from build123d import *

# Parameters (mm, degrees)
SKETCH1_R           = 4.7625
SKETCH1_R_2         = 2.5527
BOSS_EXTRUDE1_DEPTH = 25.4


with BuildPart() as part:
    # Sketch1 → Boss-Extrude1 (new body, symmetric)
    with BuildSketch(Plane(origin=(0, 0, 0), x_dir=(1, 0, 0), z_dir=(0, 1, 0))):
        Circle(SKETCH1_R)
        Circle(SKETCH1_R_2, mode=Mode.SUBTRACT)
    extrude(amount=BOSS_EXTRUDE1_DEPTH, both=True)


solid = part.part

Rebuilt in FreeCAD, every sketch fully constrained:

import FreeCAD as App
import Part
import Sketcher

V = App.Vector
Q = App.Units.Quantity

doc = App.newDocument("Part")
body = doc.addObject("PartDesign::Body", "Body")

# Sketch on XZ plane
sketch1 = body.newObject("Sketcher::SketchObject", "Sketch")
sketch1.AttachmentSupport = (doc.getObject("XZ_Plane"), [""])
sketch1.MapMode = "FlatFace"
sketch1.addGeometry([
    Part.Circle(V(0, 0, 0), V(0, 0, 1), 4.8),
    Part.Circle(V(0, 0, 0), V(0, 0, 1), 2.6),
], False)
sketch1.addConstraint([
    Sketcher.Constraint("Coincident", 0, 3, -1, 1),
    Sketcher.Constraint("Coincident", 1, 3, -1, 1),
    Sketcher.Constraint("Diameter", 0, Q("0.375 in")),
    Sketcher.Constraint("Diameter", 1, Q("0.201 in")),
])
pad1 = body.newObject("PartDesign::Pad", "Pad")
pad1.Profile = sketch1
pad1.Length = Q("2 in")
pad1.Midplane = True

doc.recompute()
